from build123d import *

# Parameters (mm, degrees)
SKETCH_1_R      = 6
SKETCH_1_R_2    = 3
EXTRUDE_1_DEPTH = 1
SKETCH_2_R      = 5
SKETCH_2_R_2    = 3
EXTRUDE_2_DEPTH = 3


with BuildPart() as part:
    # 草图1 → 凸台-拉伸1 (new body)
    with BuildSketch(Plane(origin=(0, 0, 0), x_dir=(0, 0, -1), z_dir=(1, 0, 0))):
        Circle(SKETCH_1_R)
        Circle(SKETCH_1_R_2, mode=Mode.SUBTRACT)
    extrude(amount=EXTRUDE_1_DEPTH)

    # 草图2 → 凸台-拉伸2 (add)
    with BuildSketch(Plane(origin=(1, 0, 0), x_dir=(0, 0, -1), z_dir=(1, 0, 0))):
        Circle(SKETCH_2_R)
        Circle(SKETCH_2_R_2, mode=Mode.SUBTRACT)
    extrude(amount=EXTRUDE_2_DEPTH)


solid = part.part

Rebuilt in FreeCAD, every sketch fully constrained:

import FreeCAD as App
import Part
import Sketcher
from FreeCAD import Vector

doc = App.newDocument("Part")
params = doc.addObject("Spreadsheet::Sheet", "Params")
for row, (alias, value) in enumerate([
    ("sketch1_diameter", "12 mm"),
    ("sketch1_diameter2", "6 mm"),
    ("pad1_length", "1 mm"),
    ("sketch2_diameter", "10 mm"),
    ("sketch2_diameter2", "6 mm"),
    ("pad2_length", "3 mm"),
], start=1):
    params.set(f"A{row}", alias)
    params.set(f"B{row}", "=" + value)
    params.setAlias(f"B{row}", alias)

body = doc.addObject("PartDesign::Body", "Body")

sketch1 = doc.addObject("Sketcher::SketchObject", "Sketch")
body.addObject(sketch1)
sketch1.AttachmentSupport = (doc.YZ_Plane, [""])
sketch1.MapMode = "FlatFace"
sketch1.addGeometry(Part.Circle(Vector(0, 0, 0), Vector(0, 0, 1), 6), False)
sketch1.addGeometry(Part.Circle(Vector(0, 0, 0), Vector(0, 0, 1), 3), False)
sketch1.addConstraint(Sketcher.Constraint("Coincident", 0, 3, -1, 1))
sketch1.addConstraint(Sketcher.Constraint("Coincident", 1, 3, -1, 1))
sketch1.addConstraint(Sketcher.Constraint("Diameter", 0, 12.0))
sketch1.addConstraint(Sketcher.Constraint("Diameter", 1, 6.0))
sketch1.setExpression("Constraints[2]", "Params.sketch1_diameter")
sketch1.setExpression("Constraints[3]", "Params.sketch1_diameter2")
pad1 = doc.addObject("PartDesign::Pad", "Pad")
body.addObject(pad1)
pad1.Profile = sketch1
pad1.setExpression("Length", "Params.pad1_length")

sketch2 = doc.addObject("Sketcher::SketchObject", "Sketch001")
body.addObject(sketch2)
sketch2.AttachmentSupport = (doc.YZ_Plane, [""])
sketch2.MapMode = "FlatFace"
sketch2.AttachmentOffset = App.Placement(Vector(0, 0, 1), App.Rotation())
sketch2.addGeometry(Part.Circle(Vector(0, 0, 0), Vector(0, 0, 1), 5), False)
sketch2.addGeometry(Part.Circle(Vector(0, 0, 0), Vector(0, 0, 1), 3), False)
sketch2.addConstraint(Sketcher.Constraint("Coincident", 0, 3, -1, 1))
sketch2.addConstraint(Sketcher.Constraint("Coincident", 1, 3, -1, 1))
sketch2.addConstraint(Sketcher.Constraint("Diameter", 0, 10.0))
sketch2.addConstraint(Sketcher.Constraint("Diameter", 1, 6.0))
sketch2.setExpression("Constraints[2]", "Params.sketch2_diameter")
sketch2.setExpression("Constraints[3]", "Params.sketch2_diameter2")
pad2 = doc.addObject("PartDesign::Pad", "Pad001")
body.addObject(pad2)
pad2.Profile = sketch2
pad2.setExpression("Length", "Params.pad2_length")

doc.recompute()
